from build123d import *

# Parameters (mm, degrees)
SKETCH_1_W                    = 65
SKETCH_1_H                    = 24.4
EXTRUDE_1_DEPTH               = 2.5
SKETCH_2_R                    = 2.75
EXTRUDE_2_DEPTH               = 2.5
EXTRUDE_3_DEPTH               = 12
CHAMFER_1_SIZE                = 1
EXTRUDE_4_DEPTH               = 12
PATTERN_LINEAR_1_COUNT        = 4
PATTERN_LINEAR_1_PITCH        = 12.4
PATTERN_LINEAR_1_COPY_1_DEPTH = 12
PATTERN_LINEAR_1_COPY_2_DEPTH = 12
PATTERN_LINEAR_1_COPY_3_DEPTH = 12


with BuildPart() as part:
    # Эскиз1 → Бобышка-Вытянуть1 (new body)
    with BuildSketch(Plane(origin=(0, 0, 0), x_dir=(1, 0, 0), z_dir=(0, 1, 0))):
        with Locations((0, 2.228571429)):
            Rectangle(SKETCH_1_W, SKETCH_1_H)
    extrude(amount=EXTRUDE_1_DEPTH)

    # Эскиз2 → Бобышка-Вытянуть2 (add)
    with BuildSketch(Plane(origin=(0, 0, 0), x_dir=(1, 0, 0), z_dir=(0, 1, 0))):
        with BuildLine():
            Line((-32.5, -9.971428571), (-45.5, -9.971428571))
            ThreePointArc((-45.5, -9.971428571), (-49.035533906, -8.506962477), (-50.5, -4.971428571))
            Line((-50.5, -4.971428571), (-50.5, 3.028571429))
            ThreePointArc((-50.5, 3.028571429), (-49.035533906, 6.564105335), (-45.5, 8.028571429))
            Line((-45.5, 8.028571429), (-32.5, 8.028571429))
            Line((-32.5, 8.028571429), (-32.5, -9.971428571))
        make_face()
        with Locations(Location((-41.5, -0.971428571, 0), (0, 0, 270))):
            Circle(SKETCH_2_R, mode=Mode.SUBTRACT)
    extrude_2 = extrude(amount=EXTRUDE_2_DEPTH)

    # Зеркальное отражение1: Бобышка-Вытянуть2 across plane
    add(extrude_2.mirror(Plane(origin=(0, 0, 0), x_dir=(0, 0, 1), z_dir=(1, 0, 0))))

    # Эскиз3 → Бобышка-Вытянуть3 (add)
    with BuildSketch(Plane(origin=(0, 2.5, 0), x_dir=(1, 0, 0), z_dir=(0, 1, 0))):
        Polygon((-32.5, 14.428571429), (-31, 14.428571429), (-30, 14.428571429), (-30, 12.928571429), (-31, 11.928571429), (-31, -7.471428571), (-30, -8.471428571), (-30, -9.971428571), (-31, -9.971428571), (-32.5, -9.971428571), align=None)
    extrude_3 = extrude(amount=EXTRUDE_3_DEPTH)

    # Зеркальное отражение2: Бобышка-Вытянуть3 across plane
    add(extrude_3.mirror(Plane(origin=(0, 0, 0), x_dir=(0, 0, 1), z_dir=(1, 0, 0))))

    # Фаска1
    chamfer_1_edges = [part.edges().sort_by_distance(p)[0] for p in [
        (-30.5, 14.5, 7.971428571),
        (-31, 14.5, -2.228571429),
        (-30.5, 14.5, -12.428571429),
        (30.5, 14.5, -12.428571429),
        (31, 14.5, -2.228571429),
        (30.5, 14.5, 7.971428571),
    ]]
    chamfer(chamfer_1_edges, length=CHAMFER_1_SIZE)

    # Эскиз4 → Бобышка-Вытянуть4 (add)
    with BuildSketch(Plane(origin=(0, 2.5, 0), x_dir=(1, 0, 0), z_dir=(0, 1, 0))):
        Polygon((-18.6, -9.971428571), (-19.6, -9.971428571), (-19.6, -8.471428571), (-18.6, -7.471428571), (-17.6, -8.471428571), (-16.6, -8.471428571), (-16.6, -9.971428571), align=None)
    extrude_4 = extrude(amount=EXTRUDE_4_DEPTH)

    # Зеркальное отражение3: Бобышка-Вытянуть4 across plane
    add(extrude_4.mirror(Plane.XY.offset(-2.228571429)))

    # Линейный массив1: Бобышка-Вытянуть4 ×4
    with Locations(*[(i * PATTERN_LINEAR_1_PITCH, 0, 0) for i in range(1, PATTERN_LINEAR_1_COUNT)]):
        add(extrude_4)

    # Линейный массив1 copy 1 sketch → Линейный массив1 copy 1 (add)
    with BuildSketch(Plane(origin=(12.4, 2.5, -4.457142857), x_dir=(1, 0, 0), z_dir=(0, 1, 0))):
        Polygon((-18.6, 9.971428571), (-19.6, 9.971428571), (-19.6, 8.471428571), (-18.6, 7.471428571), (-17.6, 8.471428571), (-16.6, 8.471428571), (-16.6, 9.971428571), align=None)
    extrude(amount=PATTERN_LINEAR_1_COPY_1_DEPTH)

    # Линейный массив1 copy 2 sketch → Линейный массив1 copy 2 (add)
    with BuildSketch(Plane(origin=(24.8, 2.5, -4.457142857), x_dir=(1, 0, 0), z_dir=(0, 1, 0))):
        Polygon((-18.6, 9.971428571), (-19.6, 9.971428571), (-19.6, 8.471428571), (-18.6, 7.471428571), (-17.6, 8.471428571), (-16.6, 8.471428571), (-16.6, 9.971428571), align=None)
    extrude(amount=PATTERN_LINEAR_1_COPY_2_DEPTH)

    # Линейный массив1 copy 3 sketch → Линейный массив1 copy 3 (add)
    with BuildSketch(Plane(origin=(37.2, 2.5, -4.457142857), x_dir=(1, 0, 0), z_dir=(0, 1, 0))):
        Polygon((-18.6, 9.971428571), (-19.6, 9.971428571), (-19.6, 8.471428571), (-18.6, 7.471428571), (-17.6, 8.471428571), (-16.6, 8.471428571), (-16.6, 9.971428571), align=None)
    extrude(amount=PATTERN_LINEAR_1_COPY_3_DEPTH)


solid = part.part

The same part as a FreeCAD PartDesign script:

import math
import FreeCAD as App
import Part
import Sketcher
from FreeCAD import Vector
Q = App.Units.Quantity


def edges_at(feature, points):
    """Names of the edges that pass closest to the given points."""
    edges = feature.Shape.Edges
    near = lambda p: min(range(len(edges)), key=lambda i: edges[i].distToShape(Part.Vertex(*p))[0])
    return sorted({f"Edge{near(p) + 1}" for p in points})


def add_polygon(sketch, points):
    """Adds a closed chain of lines whose ends are joined by coincident constraints."""
    first, n = sketch.GeometryCount, len(points)
    for a, b in zip(points, points[1:] + points[:1]):
        sketch.addGeometry(Part.LineSegment(App.Vector(*a, 0), App.Vector(*b, 0)), False)
    for i in range(n):
        sketch.addConstraint(Sketcher.Constraint("Coincident", first + i, 2, first + (i + 1) % n, 1))

doc = App.newDocument("Part")
body = doc.addObject("PartDesign::Body", "Body")

sketch1 = doc.addObject("Sketcher::SketchObject", "Sketch")
body.addObject(sketch1)
sketch1.AttachmentSupport = (doc.XZ_Plane, [""])
sketch1.MapMode = "FlatFace"
add_polygon(sketch1, [(-32, -14), (-32, 10), (32, 10), (32, -14)])
sketch1.addConstraint([
    Sketcher.Constraint("Vertical", 0),
    Sketcher.Constraint("Horizontal", 1),
    Sketcher.Constraint("Vertical", 2),
    Sketcher.Constraint("Horizontal", 3),
    Sketcher.Constraint("DistanceX", 1, 1, 1, 2, Q("65 mm")),
    Sketcher.Constraint("DistanceY", 0, 1, 0, 2, Q("24.4 mm")),
    Sketcher.Constraint("DistanceX", 0, 2, -1, 1, Q("32.5 mm")),
    Sketcher.Constraint("DistanceY", -1, 1, 0, 2, Q("9.971429 mm")),
])
pad1 = doc.addObject("PartDesign::Pad", "Pad")
body.addObject(pad1)
pad1.Profile = sketch1
pad1.Length = 2.5
pad1.Reversed = True

sketch2 = doc.addObject("Sketcher::SketchObject", "Sketch001")
body.addObject(sketch2)
sketch2.AttachmentSupport = (doc.XZ_Plane, [""])
sketch2.MapMode = "FlatFace"
sketch2.addGeometry([
    Part.LineSegment(Vector(-45.5, 10, 0), Vector(-32.5, 10, 0)),
    Part.LineSegment(Vector(-32.5, 10, 0), Vector(-32.5, -8, 0)),
    Part.LineSegment(Vector(-32.5, -8, 0), Vector(-45.5, -8, 0)),
    Part.ArcOfCircle(Part.Circle(Vector(-45.5, -3, 0), Vector(0, 0, 1), 5), math.radians(180), math.radians(270)),
    Part.LineSegment(Vector(-50.5, -3, 0), Vector(-50.5, 5, 0)),
    Part.ArcOfCircle(Part.Circle(Vector(-45.5, 5, 0), Vector(0, 0, 1), 5), math.radians(90), math.radians(180)),
    Part.Circle(Vector(-41.5, 1, 0), Vector(0, 0, 1), 2.8),
], False)
sketch2.addConstraint([
    Sketcher.Constraint("Coincident", 0, 2, 1, 1),
    Sketcher.Constraint("Coincident", 1, 2, 2, 1),
    Sketcher.Constraint("Tangent", 2, 2, 3, 2),
    Sketcher.Constraint("Tangent", 3, 1, 4, 1),
    Sketcher.Constraint("Tangent", 4, 2, 5, 2),
    Sketcher.Constraint("Tangent", 5, 1, 0, 1),
    Sketcher.Constraint("Horizontal", 0),
    Sketcher.Constraint("Vertical", 1),
    Sketcher.Constraint("Horizontal", 2),
    Sketcher.Constraint("Vertical", 4),
    Sketcher.Constraint("Equal", 3, 5),
    Sketcher.Constraint("Radius", 3, Q("5 mm")),
    Sketcher.Constraint("Diameter", 6, Q("5.5 mm")),
    Sketcher.Constraint("DistanceX", 0, 1, 0, 2, Q("13 mm")),
    Sketcher.Constraint("DistanceY", 1, 2, 1, 1, Q("18 mm")),
    Sketcher.Constraint("DistanceX", 5, 3, 6, 3, Q("4 mm")),
    Sketcher.Constraint("DistanceY", 6, 3, 5, 3, Q("4 mm")),
    Sketcher.Constraint("DistanceX", 3, 3, -1, 1, Q("45.5 mm")),
    Sketcher.Constraint("DistanceY", 3, 3, -1, 1, Q("3.028571 mm")),
])
pad2 = doc.addObject("PartDesign::Pad", "Pad001")
body.addObject(pad2)
pad2.Profile = sketch2
pad2.Length = 2.5
pad2.Reversed = True
doc.recompute()

mirrored = doc.addObject("PartDesign::Mirrored", "Mirrored")
body.addObject(mirrored)
mirrored.Originals = [pad2]
mirrored.MirrorPlane = (doc.YZ_Plane, [""])
body.Tip = mirrored

sketch3 = doc.addObject("Sketcher::SketchObject", "Sketch002")
body.addObject(sketch3)
sketch3.AttachmentSupport = (doc.XZ_Plane, [""])
sketch3.MapMode = "FlatFace"
sketch3.AttachmentOffset = App.Placement(Vector(0, 0, -2.5), App.Rotation())
add_polygon(sketch3, [(-30, -14.4), (-32.5, -14.4), (-32.5, 10), (-30, 10), (-30, 8.5), (-31, 7.5), (-31, -11.9), (-30, -12.9)])
sketch3.addConstraint([
    Sketcher.Constraint("Horizontal", 0),
    Sketcher.Constraint("Vertical", 1),
    Sketcher.Constraint("Horizontal", 2),
    Sketcher.Constraint("Vertical", 3),
    Sketcher.Constraint("Vertical", 5),
    Sketcher.Constraint("Vertical", 7),
    Sketcher.Constraint("Perpendicular", 4, 6),
    Sketcher.Constraint("Vertical", 3, 2, 6, 2),
    Sketcher.Constraint("Equal", 3, 7),
    Sketcher.Constraint("Equal", 4, 6),
    Sketcher.Constraint("DistanceX", 0, 2, 0, 1, Q("2.5 mm")),
    Sketcher.Constraint("DistanceY", 1, 1, 1, 2, Q("24.4 mm")),
    Sketcher.Constraint("DistanceY", 3, 2, 3, 1, Q("1.5 mm")),
    Sketcher.Constraint("DistanceY", 5, 2, 5, 1, Q("19.4 mm")),
    Sketcher.Constraint("DistanceX", 2, 2, -1, 1, Q("30 mm")),
    Sketcher.Constraint("DistanceY", 0, 2, -1, 1, Q("14.428571 mm")),
])
pad3 = doc.addObject("PartDesign::Pad", "Pad002")
body.addObject(pad3)
pad3.Profile = sketch3
pad3.Length = 12
pad3.Reversed = True
doc.recompute()

mirrored2 = doc.addObject("PartDesign::Mirrored", "Mirrored001")
body.addObject(mirrored2)
mirrored2.Originals = [pad3]
mirrored2.MirrorPlane = (doc.YZ_Plane, [""])
body.Tip = mirrored2
doc.recompute()

chamfer = doc.addObject("PartDesign::Chamfer", "Chamfer")
body.addObject(chamfer)
chamfer.Base = (mirrored2, edges_at(mirrored2, [
    (-30.5, 14.5, 7.971),
    (-31, 14.5, -2.229),
    (-30.5, 14.5, -12.429),
    (30.5, 14.5, -12.429),
    (31, 14.5, -2.229),
    (30.5, 14.5, 7.971),
]))
chamfer.Size = 1

sketch4 = doc.addObject("Sketcher::SketchObject", "Sketch003")
body.addObject(sketch4)
sketch4.AttachmentSupport = (doc.XZ_Plane, [""])
sketch4.MapMode = "FlatFace"
sketch4.AttachmentOffset = App.Placement(Vector(0, 0, -2.5), App.Rotation())
add_polygon(sketch4, [(-19.6, 10), (-16.6, 10), (-16.6, 8.5), (-17.6, 8.5), (-18.6, 7.5), (-19.6, 8.5)])
sketch4.addConstraint([
    Sketcher.Constraint("Horizontal", 0),
    Sketcher.Constraint("Vertical", 1),
    Sketcher.Constraint("Horizontal", 2),
    Sketcher.Constraint("Vertical", 5),
    Sketcher.Constraint("Perpendicular", 3, 4),
    Sketcher.Constraint("Horizontal", 2, 2, 4, 2),
    Sketcher.Constraint("Equal", 3, 4),
    Sketcher.Constraint("DistanceX", 0, 1, 0, 2, Q("3 mm")),
    Sketcher.Constraint("DistanceX", 2, 2, 2, 1, Q("1 mm")),
    Sketcher.Constraint("DistanceY", 1, 2, 1, 1, Q("1.5 mm")),
    Sketcher.Constraint("DistanceX", 0, 2, -1, 1, Q("16.6 mm")),
    Sketcher.Constraint("DistanceY", -1, 1, 0, 2, Q("9.971429 mm")),
])
pad4 = doc.addObject("PartDesign::Pad", "Pad003")
body.addObject(pad4)
pad4.Profile = sketch4
pad4.Length = 12
pad4.Reversed = True
doc.recompute()

datumplane = doc.addObject("PartDesign::Plane", "DatumPlane")
body.addObject(datumplane)
datumplane.AttachmentSupport = (doc.XY_Plane, [""])
datumplane.MapMode = "FlatFace"
datumplane.AttachmentOffset = App.Placement(Vector(0, 0, -2.228571), App.Rotation())
mirrored3 = doc.addObject("PartDesign::Mirrored", "Mirrored002")
body.addObject(mirrored3)
mirrored3.Originals = [pad4]
mirrored3.MirrorPlane = (datumplane, [""])
body.Tip = mirrored3
doc.recompute()

linearpattern = doc.addObject("PartDesign::LinearPattern", "LinearPattern")
body.addObject(linearpattern)
linearpattern.Originals = [pad4]
linearpattern.Direction = (doc.X_Axis, [""])
linearpattern.Mode = "offset"
linearpattern.Offset = 12.4
linearpattern.Occurrences = 4
body.Tip = linearpattern

sketch5 = doc.addObject("Sketcher::SketchObject", "Sketch004")
body.addObject(sketch5)
sketch5.AttachmentSupport = (doc.XZ_Plane, [""])
sketch5.MapMode = "FlatFace"
sketch5.AttachmentOffset = App.Placement(Vector(0, 0, -2.5), App.Rotation())
add_polygon(sketch5, [(-7.2, -14.4), (-7.2, -12.9), (-6.2, -11.9), (-5.2, -12.9), (-4.2, -12.9), (-4.2, -14.4)])
sketch5.addConstraint([
    Sketcher.Constraint("Vertical", 0),
    Sketcher.Constraint("Horizontal", 3),
    Sketcher.Constraint("Vertical", 4),
    Sketcher.Constraint("Horizontal", 5),
    Sketcher.Constraint("Perpendicular", 1, 2),
    Sketcher.Constraint("Horizontal", 0, 2, 2, 2),
    Sketcher.Constraint("Equal", 1, 2),
    Sketcher.Constraint("DistanceX", 3, 1, 3, 2, Q("1 mm")),
    Sketcher.Constraint("DistanceX", 5, 2, 5, 1, Q("3 mm")),
    Sketcher.Constraint("DistanceY", 0, 1, 0, 2, Q("1.5 mm")),
    Sketcher.Constraint("DistanceX", 0, 2, -1, 1, Q("7.2 mm")),
    Sketcher.Constraint("DistanceY", 0, 2, -1, 1, Q("12.928571 mm")),
])
pad5 = doc.addObject("PartDesign::Pad", "Pad004")
body.addObject(pad5)
pad5.Profile = sketch5
pad5.Length = 12
pad5.Reversed = True

sketch6 = doc.addObject("Sketcher::SketchObject", "Sketch005")
body.addObject(sketch6)
sketch6.AttachmentSupport = (doc.XZ_Plane, [""])
sketch6.MapMode = "FlatFace"
sketch6.AttachmentOffset = App.Placement(Vector(0, 0, -2.5), App.Rotation())
add_polygon(sketch6, [(5.2, -14.4), (5.2, -12.9), (6.2, -11.9), (7.2, -12.9), (8.2, -12.9), (8.2, -14.4)])
sketch6.addConstraint([
    Sketcher.Constraint("Vertical", 0),
    Sketcher.Constraint("Horizontal", 3),
    Sketcher.Constraint("Vertical", 4),
    Sketcher.Constraint("Horizontal", 5),
    Sketcher.Constraint("Perpendicular", 1, 2),
    Sketcher.Constraint("Horizontal", 0, 2, 2, 2),
    Sketcher.Constraint("Equal", 1, 2),
    Sketcher.Constraint("DistanceX", 3, 1, 3, 2, Q("1 mm")),
    Sketcher.Constraint("DistanceX", 5, 2, 5, 1, Q("3 mm")),
    Sketcher.Constraint("DistanceY", 0, 1, 0, 2, Q("1.5 mm")),
    Sketcher.Constraint("DistanceX", -1, 1, 0, 2, Q("5.2 mm")),
    Sketcher.Constraint("DistanceY", 0, 2, -1, 1, Q("12.928571 mm")),
])
pad6 = doc.addObject("PartDesign::Pad", "Pad005")
body.addObject(pad6)
pad6.Profile = sketch6
pad6.Length = 12
pad6.Reversed = True

sketch7 = doc.addObject("Sketcher::SketchObject", "Sketch006")
body.addObject(sketch7)
sketch7.AttachmentSupport = (doc.XZ_Plane, [""])
sketch7.MapMode = "FlatFace"
sketch7.AttachmentOffset = App.Placement(Vector(0, 0, -2.5), App.Rotation())
add_polygon(sketch7, [(17.6, -14.4), (17.6, -12.9), (18.6, -11.9), (19.6, -12.9), (20.6, -12.9), (20.6, -14.4)])
sketch7.addConstraint([
    Sketcher.Constraint("Vertical", 0),
    Sketcher.Constraint("Horizontal", 3),
    Sketcher.Constraint("Vertical", 4),
    Sketcher.Constraint("Horizontal", 5),
    Sketcher.Constraint("Perpendicular", 1, 2),
    Sketcher.Constraint("Horizontal", 0, 2, 2, 2),
    Sketcher.Constraint("Equal", 1, 2),
    Sketcher.Constraint("DistanceX", 3, 1, 3, 2, Q("1 mm")),
    Sketcher.Constraint("DistanceX", 5, 2, 5, 1, Q("3 mm")),
    Sketcher.Constraint("DistanceY", 0, 1, 0, 2, Q("1.5 mm")),
    Sketcher.Constraint("DistanceX", -1, 1, 0, 2, Q("17.6 mm")),
    Sketcher.Constraint("DistanceY", 0, 2, -1, 1, Q("12.928571 mm")),
])
pad7 = doc.addObject("PartDesign::Pad", "Pad006")
body.addObject(pad7)
pad7.Profile = sketch7
pad7.Length = 12
pad7.Reversed = True

doc.recompute()
